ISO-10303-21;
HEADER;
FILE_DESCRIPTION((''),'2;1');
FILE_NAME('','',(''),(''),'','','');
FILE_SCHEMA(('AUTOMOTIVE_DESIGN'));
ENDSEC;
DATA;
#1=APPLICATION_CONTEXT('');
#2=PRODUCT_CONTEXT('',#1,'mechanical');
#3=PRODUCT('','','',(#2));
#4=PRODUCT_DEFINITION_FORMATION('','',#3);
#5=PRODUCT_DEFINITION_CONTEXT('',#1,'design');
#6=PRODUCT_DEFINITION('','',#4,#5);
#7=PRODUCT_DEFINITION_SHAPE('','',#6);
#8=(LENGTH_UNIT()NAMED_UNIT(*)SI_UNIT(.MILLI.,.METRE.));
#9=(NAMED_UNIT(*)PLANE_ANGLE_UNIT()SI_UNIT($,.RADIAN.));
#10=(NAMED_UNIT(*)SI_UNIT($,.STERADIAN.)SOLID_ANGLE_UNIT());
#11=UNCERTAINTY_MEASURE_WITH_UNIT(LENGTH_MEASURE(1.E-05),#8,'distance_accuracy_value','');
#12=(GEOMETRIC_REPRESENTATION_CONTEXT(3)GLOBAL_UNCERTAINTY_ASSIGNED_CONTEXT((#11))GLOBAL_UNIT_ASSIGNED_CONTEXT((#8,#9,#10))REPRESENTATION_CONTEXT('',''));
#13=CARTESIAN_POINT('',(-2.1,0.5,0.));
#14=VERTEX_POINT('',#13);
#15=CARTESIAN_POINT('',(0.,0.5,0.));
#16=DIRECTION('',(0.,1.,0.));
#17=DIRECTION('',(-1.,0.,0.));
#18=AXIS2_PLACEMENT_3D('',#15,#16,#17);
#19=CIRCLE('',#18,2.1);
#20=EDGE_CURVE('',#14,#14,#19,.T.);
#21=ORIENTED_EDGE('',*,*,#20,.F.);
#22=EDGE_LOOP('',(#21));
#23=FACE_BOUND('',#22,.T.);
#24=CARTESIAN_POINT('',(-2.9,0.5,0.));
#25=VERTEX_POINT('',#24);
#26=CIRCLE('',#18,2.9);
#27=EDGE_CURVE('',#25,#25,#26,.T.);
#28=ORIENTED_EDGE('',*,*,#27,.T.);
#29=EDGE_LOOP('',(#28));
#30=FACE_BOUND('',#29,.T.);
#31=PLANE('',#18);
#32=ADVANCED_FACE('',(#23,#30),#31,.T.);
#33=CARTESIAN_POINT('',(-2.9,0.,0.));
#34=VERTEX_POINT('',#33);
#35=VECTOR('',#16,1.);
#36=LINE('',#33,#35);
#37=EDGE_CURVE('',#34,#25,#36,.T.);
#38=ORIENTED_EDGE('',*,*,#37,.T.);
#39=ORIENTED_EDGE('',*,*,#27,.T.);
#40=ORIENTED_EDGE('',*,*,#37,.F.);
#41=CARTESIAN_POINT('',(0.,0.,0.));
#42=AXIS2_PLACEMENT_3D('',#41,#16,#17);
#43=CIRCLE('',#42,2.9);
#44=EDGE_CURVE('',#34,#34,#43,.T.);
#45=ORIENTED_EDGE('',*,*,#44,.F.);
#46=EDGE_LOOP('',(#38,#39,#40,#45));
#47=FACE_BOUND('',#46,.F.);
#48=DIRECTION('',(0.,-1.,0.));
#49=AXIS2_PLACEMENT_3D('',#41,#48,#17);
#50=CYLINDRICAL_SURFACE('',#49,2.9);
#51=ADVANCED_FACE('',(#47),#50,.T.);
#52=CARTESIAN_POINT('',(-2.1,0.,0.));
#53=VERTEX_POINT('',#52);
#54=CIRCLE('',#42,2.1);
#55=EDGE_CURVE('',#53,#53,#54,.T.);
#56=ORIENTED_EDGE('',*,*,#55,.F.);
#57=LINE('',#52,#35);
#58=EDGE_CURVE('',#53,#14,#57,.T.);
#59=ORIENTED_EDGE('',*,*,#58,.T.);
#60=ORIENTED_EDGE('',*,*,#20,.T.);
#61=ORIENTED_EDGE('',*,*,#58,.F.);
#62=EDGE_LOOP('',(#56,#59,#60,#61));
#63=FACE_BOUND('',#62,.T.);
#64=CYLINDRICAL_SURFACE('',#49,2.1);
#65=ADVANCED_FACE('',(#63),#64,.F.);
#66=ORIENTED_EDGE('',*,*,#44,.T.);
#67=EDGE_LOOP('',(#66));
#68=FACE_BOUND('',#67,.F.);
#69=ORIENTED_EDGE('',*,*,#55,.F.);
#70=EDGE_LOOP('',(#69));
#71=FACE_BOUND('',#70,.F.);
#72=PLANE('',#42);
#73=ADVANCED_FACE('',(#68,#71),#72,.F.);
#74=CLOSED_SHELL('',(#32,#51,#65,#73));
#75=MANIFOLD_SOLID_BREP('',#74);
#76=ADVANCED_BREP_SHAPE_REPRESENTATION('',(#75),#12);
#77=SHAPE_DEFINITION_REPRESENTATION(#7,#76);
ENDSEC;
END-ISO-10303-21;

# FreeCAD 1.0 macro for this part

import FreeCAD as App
import Part
import Sketcher

V = App.Vector

doc = App.newDocument("Part")
body = doc.addObject("PartDesign::Body", "Body")

sketch1 = body.newObject("Sketcher::SketchObject", "Sketch")
sketch1.AttachmentSupport = (doc.getObject("XZ_Plane"), [""])
sketch1.MapMode = "FlatFace"
sketch1.addGeometry(Part.Circle(V(0, 0, 0), V(0, 0, 1), 2.9), False)
sketch1.addGeometry(Part.Circle(V(0, 0, 0), V(0, 0, 1), 2.1), False)
sketch1.addConstraint(Sketcher.Constraint("Coincident", 0, 3, -1, 1))
sketch1.addConstraint(Sketcher.Constraint("Coincident", 1, 3, -1, 1))
sketch1.addConstraint(Sketcher.Constraint("Diameter", 0, 5.8))
sketch1.addConstraint(Sketcher.Constraint("Diameter", 1, 4.2))
pad1 = body.newObject("PartDesign::Pad", "Pad")
pad1.Profile = sketch1
pad1.Length = 0.5
pad1.Reversed = True

doc.recompute()
